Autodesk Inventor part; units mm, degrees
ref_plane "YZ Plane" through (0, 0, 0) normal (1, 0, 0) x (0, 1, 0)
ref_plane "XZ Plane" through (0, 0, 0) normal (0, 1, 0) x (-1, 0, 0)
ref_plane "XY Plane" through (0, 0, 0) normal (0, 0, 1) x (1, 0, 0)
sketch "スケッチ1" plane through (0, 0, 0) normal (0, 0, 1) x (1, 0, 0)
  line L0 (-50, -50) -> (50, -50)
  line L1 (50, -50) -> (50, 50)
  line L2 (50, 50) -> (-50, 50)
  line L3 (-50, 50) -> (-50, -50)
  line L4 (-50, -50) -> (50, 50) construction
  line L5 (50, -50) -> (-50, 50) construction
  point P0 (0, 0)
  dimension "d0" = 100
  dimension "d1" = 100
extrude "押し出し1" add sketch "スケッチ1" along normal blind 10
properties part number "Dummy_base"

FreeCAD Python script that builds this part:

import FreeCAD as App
import Part
import Sketcher

V = App.Vector
Q = App.Units.Quantity

doc = App.newDocument("Part")
body = doc.addObject("PartDesign::Body", "Body")

sketch1 = body.newObject("Sketcher::SketchObject", "Sketch")
sketch1.AttachmentSupport = (doc.getObject("XY_Plane"), [""])
sketch1.MapMode = "FlatFace"
sketch1.addGeometry([
    Part.LineSegment(V(-50, 50, 0), V(-50, -50, 0)),
    Part.LineSegment(V(-50, -50, 0), V(50, -50, 0)),
    Part.LineSegment(V(50, -50, 0), V(50, 50, 0)),
    Part.LineSegment(V(50, 50, 0), V(-50, 50, 0)),
], False)
sketch1.addConstraint([
    Sketcher.Constraint("Coincident", 0, 2, 1, 1),
    Sketcher.Constraint("Coincident", 1, 2, 2, 1),
    Sketcher.Constraint("Coincident", 2, 2, 3, 1),
    Sketcher.Constraint("Coincident", 3, 2, 0, 1),
    Sketcher.Constraint("Vertical", 0),
    Sketcher.Constraint("Horizontal", 1),
    Sketcher.Constraint("Vertical", 2),
    Sketcher.Constraint("Horizontal", 3),
    Sketcher.Constraint("Symmetric", 0, 2, 2, 2, -1, 1),
    Sketcher.Constraint("Equal", 3, 0),
    Sketcher.Constraint("DistanceX", 1, 1, 1, 2, Q("3.937 in")),
])
pad1 = body.newObject("PartDesign::Pad", "Pad")
pad1.Profile = sketch1
pad1.Length = Q("0.3937008 in")

doc.recompute()
